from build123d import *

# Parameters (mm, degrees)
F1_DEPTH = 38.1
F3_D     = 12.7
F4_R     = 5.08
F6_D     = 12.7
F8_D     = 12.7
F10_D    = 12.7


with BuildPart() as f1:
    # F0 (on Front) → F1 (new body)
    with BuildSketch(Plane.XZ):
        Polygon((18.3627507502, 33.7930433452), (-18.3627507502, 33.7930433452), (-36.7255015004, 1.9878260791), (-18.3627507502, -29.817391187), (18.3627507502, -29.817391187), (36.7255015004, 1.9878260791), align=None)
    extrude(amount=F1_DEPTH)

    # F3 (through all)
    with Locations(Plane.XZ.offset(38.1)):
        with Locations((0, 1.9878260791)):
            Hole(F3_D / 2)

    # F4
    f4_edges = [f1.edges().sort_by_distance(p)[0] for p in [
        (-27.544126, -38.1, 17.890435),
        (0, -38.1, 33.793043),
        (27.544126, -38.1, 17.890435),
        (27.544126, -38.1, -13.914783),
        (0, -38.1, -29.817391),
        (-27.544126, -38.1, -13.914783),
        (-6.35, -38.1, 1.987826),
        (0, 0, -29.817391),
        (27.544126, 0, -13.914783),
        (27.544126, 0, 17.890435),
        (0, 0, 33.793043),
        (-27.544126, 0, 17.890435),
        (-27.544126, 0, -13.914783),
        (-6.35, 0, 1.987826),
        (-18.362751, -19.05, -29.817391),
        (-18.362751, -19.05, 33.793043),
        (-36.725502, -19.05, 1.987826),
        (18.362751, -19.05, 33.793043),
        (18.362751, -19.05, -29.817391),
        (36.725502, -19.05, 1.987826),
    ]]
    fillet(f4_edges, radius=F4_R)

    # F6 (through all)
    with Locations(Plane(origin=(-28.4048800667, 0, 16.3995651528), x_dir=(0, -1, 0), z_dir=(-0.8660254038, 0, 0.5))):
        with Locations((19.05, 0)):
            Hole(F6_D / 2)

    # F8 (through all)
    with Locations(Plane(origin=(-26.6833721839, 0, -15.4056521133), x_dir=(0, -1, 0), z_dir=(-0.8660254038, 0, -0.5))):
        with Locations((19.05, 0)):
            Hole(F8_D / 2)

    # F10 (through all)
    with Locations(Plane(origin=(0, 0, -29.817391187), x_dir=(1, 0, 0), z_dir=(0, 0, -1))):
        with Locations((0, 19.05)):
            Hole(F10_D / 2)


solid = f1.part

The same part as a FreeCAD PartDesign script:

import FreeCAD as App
import Part
import Sketcher
Q = App.Units.Quantity

doc = App.newDocument("Part")
body = doc.addObject("PartDesign::Body", "Body")

sketch1 = doc.addObject("Sketcher::SketchObject", "Sketch")
body.addObject(sketch1)
sketch1.AttachmentSupport = (doc.XZ_Plane, [""])
sketch1.MapMode = "FlatFace"
sketch1.addGeometry([
    Part.LineSegment(App.Vector(18.362751, 33.793043, 0), App.Vector(-18.362751, 33.793043, 0)),
    Part.LineSegment(App.Vector(-18.362751, 33.793043, 0), App.Vector(-36.725502, 1.987826, 0)),
    Part.LineSegment(App.Vector(-36.725502, 1.987826, 0), App.Vector(-18.362751, -29.817391, 0)),
    Part.LineSegment(App.Vector(-18.362751, -29.817391, 0), App.Vector(18.362751, -29.817391, 0)),
    Part.LineSegment(App.Vector(18.362751, -29.817391, 0), App.Vector(36.725502, 1.987826, 0)),
    Part.LineSegment(App.Vector(36.725502, 1.987826, 0), App.Vector(18.362751, 33.793043, 0)),
], False)
sketch1.addConstraint([
    Sketcher.Constraint("Coincident", 0, 2, 1, 1),
    Sketcher.Constraint("Coincident", 1, 2, 2, 1),
    Sketcher.Constraint("Coincident", 2, 2, 3, 1),
    Sketcher.Constraint("Coincident", 3, 2, 4, 1),
    Sketcher.Constraint("Coincident", 4, 2, 5, 1),
    Sketcher.Constraint("Coincident", 5, 2, 0, 1),
    Sketcher.Constraint("Horizontal", 0),
    Sketcher.Constraint("Horizontal", 3),
    Sketcher.Constraint("Symmetric", 1, 2, 4, 2, -2),
    Sketcher.Constraint("Parallel", 1, 4),
    Sketcher.Constraint("Parallel", 2, 5),
    Sketcher.Constraint("Vertical", 0, 2, 2, 2),
    Sketcher.Constraint("Vertical", 3, 2, 5, 2),
    Sketcher.Constraint("Angle", 1, Q("-120 deg")),
    Sketcher.Constraint("DistanceX", 0, 2, 0, 1, 36.725502),
    Sketcher.Constraint("Distance", 1, 36.725502),
    Sketcher.Constraint("DistanceY", 2, 2, -1, 1, 29.817391),
])
pad1 = doc.addObject("PartDesign::Pad", "Pad")
body.addObject(pad1)
pad1.Profile = sketch1
pad1.Length = Q("1.5 in")

sketch2 = doc.addObject("Sketcher::SketchObject", "Sketch001")
body.addObject(sketch2)
sketch2.AttachmentSupport = (doc.XZ_Plane, [""])
sketch2.MapMode = "FlatFace"
sketch2.AttachmentOffset = App.Placement(App.Vector(0, 0, 1.5 * 25.4), App.Rotation())
sketch2.addGeometry(Part.Circle(App.Vector(0, 1.987826, 0), App.Vector(0, 0, 1), 6.35), False)
sketch2.addConstraint([
    Sketcher.Constraint("PointOnObject", 0, 3, -2),
    Sketcher.Constraint("Diameter", 0, Q("0.5 in")),
    Sketcher.Constraint("DistanceY", -1, 1, 0, 3, 1.987826),
])
doc.recompute()
hole = doc.addObject("PartDesign::Hole", "Hole")
body.addObject(hole)
hole.Profile = sketch2
hole.ThreadType = "None"
hole.Diameter = Q("0.5 in")
hole.DepthType = "ThroughAll"
doc.recompute()

fillet = doc.addObject("PartDesign::Fillet", "Fillet")
body.addObject(fillet)
fillet.Base = (hole, ["Edge1"])
fillet.UseAllEdges = True
fillet.Radius = Q("0.2 in")

sketch3 = doc.addObject("Sketcher::SketchObject", "Sketch002")
body.addObject(sketch3)
sketch3.Placement = App.Placement(App.Vector(-28.40488, 0, 16.399565), App.Rotation(App.Vector(0, -1, 0), App.Vector(0.5, 0, 0.866025404), App.Vector(-0.866025404, 0, 0.5), "ZXY"))
sketch3.addGeometry(Part.Circle(App.Vector(19.05, 0, 0), App.Vector(0, 0, 1), 6.35), False)
sketch3.addConstraint([
    Sketcher.Constraint("PointOnObject", 0, 3, -1),
    Sketcher.Constraint("Diameter", 0, Q("0.5 in")),
    Sketcher.Constraint("DistanceX", -1, 1, 0, 3, Q("0.75 in")),
])
doc.recompute()
hole2 = doc.addObject("PartDesign::Hole", "Hole001")
body.addObject(hole2)
hole2.Profile = sketch3
hole2.ThreadType = "None"
hole2.Diameter = Q("0.5 in")
hole2.DepthType = "ThroughAll"

sketch4 = doc.addObject("Sketcher::SketchObject", "Sketch003")
body.addObject(sketch4)
sketch4.Placement = App.Placement(App.Vector(-26.683372, 0, -15.405652), App.Rotation(App.Vector(0, -1, 0), App.Vector(-0.5, 0, 0.866025404), App.Vector(-0.866025404, 0, -0.5), "ZXY"))
sketch4.addGeometry(Part.Circle(App.Vector(19.05, 0, 0), App.Vector(0, 0, 1), 6.35), False)
sketch4.addConstraint([
    Sketcher.Constraint("PointOnObject", 0, 3, -1),
    Sketcher.Constraint("Diameter", 0, Q("0.5 in")),
    Sketcher.Constraint("DistanceX", -1, 1, 0, 3, Q("0.75 in")),
])
doc.recompute()
hole3 = doc.addObject("PartDesign::Hole", "Hole002")
body.addObject(hole3)
hole3.Profile = sketch4
hole3.ThreadType = "None"
hole3.Diameter = Q("0.5 in")
hole3.DepthType = "ThroughAll"

sketch5 = doc.addObject("Sketcher::SketchObject", "Sketch004")
body.addObject(sketch5)
sketch5.AttachmentSupport = (doc.XY_Plane, [""])
sketch5.MapMode = "FlatFace"
sketch5.AttachmentOffset = App.Placement(App.Vector(0, 0, -29.817391), App.Rotation())
sketch5.addGeometry(Part.Circle(App.Vector(0, -19.05, 0), App.Vector(0, 0, 1), 6.35), False)
sketch5.addConstraint([
    Sketcher.Constraint("PointOnObject", 0, 3, -2),
    Sketcher.Constraint("Diameter", 0, Q("0.5 in")),
    Sketcher.Constraint("DistanceY", 0, 3, -1, 1, Q("0.75 in")),
])
doc.recompute()
hole4 = doc.addObject("PartDesign::Hole", "Hole003")
body.addObject(hole4)
hole4.Profile = sketch5
hole4.ThreadType = "None"
hole4.Diameter = Q("0.5 in")
hole4.DepthType = "ThroughAll"
hole4.Reversed = True

doc.recompute()
